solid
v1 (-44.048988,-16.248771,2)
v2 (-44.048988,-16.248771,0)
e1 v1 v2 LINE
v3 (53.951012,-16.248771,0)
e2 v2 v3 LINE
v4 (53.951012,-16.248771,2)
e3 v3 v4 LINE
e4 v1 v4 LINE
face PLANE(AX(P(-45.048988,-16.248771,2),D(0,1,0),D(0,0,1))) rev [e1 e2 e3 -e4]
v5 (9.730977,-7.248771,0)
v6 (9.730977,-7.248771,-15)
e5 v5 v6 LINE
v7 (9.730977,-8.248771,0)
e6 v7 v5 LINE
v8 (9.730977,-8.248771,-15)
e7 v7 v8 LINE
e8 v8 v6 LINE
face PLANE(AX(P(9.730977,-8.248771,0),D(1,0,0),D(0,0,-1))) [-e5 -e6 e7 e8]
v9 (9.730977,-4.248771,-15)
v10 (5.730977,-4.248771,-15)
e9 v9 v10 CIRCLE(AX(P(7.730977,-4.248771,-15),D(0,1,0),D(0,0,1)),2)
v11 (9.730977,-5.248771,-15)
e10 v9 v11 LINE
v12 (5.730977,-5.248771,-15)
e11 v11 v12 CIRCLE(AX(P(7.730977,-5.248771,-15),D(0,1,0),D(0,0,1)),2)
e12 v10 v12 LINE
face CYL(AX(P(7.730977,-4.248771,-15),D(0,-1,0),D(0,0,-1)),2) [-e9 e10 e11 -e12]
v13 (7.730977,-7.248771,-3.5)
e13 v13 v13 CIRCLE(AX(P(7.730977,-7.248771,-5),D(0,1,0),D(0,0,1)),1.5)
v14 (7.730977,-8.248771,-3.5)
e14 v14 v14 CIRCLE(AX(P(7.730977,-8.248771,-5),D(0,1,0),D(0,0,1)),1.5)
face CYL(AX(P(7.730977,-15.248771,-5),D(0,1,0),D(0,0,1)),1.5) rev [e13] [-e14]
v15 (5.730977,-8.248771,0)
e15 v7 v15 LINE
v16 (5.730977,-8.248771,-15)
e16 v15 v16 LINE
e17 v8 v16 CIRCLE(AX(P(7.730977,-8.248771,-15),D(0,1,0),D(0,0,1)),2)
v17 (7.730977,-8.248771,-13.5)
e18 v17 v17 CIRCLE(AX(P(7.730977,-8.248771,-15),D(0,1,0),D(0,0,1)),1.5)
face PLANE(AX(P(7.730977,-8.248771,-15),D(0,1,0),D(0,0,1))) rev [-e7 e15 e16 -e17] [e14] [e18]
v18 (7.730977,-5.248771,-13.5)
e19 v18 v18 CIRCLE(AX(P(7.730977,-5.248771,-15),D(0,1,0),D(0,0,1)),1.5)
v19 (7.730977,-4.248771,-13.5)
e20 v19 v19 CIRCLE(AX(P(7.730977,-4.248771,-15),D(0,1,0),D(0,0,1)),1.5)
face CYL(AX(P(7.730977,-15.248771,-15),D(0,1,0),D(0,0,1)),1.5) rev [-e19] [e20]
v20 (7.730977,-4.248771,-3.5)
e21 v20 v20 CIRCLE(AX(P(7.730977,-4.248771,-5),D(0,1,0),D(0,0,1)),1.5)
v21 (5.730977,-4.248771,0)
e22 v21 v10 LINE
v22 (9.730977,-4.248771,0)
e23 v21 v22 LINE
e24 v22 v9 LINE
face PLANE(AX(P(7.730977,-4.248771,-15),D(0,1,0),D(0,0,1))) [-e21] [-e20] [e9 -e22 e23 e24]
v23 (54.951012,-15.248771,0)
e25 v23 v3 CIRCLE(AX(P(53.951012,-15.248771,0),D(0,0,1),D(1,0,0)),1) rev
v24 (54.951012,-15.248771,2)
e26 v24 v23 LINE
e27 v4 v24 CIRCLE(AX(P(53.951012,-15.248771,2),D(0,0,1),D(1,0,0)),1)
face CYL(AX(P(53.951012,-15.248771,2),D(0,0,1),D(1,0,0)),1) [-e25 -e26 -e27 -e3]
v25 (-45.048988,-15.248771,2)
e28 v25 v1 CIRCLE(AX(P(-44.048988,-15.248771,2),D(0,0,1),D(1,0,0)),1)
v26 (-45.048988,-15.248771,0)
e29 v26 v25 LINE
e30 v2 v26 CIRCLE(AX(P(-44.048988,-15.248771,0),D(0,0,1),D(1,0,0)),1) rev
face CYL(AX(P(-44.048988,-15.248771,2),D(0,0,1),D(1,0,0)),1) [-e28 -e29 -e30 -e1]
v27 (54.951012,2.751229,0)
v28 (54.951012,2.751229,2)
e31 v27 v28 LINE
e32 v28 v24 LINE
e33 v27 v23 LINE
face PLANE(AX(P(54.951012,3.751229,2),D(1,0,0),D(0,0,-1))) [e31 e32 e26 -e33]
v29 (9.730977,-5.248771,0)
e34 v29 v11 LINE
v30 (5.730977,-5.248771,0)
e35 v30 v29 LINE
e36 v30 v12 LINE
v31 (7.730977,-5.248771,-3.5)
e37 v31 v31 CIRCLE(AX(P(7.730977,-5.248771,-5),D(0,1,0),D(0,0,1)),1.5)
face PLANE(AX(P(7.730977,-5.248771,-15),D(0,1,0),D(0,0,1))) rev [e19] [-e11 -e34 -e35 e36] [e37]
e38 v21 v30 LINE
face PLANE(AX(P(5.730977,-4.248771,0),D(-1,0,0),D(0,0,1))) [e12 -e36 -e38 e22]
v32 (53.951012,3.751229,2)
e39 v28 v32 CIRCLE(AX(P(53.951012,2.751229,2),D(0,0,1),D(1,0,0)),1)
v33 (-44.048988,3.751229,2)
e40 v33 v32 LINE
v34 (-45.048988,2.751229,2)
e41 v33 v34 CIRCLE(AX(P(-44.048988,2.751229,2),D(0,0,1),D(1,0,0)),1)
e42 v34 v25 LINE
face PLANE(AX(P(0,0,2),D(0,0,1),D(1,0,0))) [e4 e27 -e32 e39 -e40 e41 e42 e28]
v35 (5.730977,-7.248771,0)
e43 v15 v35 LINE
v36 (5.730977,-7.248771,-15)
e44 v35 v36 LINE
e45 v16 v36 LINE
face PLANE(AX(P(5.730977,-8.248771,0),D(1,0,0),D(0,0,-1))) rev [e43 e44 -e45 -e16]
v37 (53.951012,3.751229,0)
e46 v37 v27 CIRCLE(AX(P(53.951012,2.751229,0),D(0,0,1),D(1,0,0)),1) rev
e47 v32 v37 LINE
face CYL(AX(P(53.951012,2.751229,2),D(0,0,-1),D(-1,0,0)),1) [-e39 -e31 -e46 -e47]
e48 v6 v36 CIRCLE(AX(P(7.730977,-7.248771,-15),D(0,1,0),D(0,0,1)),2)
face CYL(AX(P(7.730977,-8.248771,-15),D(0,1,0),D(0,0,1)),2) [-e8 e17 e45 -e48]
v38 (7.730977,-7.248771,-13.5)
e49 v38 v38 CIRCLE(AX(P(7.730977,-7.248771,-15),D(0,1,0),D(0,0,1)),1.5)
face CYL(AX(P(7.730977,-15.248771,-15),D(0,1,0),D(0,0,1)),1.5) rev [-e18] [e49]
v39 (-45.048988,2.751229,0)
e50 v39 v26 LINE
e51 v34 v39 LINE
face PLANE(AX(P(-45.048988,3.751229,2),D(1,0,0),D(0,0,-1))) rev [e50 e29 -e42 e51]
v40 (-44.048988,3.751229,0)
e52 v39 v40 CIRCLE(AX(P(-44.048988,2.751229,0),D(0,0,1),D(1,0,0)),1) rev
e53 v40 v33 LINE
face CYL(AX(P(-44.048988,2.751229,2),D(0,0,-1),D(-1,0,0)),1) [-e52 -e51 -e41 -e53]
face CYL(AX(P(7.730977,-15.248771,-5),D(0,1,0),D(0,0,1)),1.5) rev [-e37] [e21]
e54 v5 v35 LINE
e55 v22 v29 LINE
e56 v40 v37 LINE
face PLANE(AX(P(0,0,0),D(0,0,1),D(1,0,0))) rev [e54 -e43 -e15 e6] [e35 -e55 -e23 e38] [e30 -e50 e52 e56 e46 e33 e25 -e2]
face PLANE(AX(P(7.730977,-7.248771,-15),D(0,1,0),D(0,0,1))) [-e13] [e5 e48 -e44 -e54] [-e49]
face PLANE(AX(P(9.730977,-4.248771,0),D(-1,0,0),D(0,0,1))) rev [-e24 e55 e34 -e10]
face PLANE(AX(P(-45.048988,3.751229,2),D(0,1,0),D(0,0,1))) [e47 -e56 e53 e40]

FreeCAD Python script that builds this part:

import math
import FreeCAD as App
import Part
import Sketcher


def edges_at(feature, points):
    """Names of the edges that pass closest to the given points."""
    edges = feature.Shape.Edges
    near = lambda p: min(range(len(edges)), key=lambda i: edges[i].distToShape(Part.Vertex(*p))[0])
    return sorted({f"Edge{near(p) + 1}" for p in points})

doc = App.newDocument("Part")
params = doc.addObject("Spreadsheet::Sheet", "Params")
for row, (alias, value) in enumerate([
    ("sketch1_width", "100 mm"),
    ("sketch1_height", "20 mm"),
    ("pad1_length", "2 mm"),
    ("fillet_radius", "1 mm"),
    ("fillet2_radius", "1 mm"),
    ("fillet3_radius", "1 mm"),
    ("fillet4_radius", "1 mm"),
    ("sketch2_radius", "2 mm"),
    ("sketch2_height", "15 mm"),
    ("pad2_length", "1 mm"),
    ("sketch3_radius", "2 mm"),
    ("sketch3_height", "15 mm"),
    ("pad3_length", "1 mm"),
    ("sketch4_diameter", "3 mm"),
    ("pocket1_length", "11 mm"),
], start=1):
    params.set(f"A{row}", alias)
    params.set(f"B{row}", "=" + value)
    params.setAlias(f"B{row}", alias)

body = doc.addObject("PartDesign::Body", "Body")

sketch1 = body.newObject("Sketcher::SketchObject", "Sketch")
sketch1.AttachmentSupport = (doc.getObject("XY_Plane"), [""])
sketch1.MapMode = "FlatFace"
sketch1.addGeometry([
    Part.LineSegment(App.Vector(-45, 4, 0), App.Vector(-45, -16, 0)),
    Part.LineSegment(App.Vector(-45, -16, 0), App.Vector(55, -16, 0)),
    Part.LineSegment(App.Vector(55, -16, 0), App.Vector(55, 4, 0)),
    Part.LineSegment(App.Vector(55, 4, 0), App.Vector(-45, 4, 0)),
], False)
sketch1.addConstraint([
    Sketcher.Constraint("Coincident", 0, 2, 1, 1),
    Sketcher.Constraint("Coincident", 1, 2, 2, 1),
    Sketcher.Constraint("Coincident", 2, 2, 3, 1),
    Sketcher.Constraint("Coincident", 3, 2, 0, 1),
    Sketcher.Constraint("Vertical", 0),
    Sketcher.Constraint("Horizontal", 1),
    Sketcher.Constraint("Vertical", 2),
    Sketcher.Constraint("Horizontal", 3),
    Sketcher.Constraint("DistanceX", 1, 1, 1, 2, 100.0),
    Sketcher.Constraint("DistanceY", 0, 2, 0, 1, 20.0),
    Sketcher.Constraint("DistanceX", 0, 2, -1, 1, 45.048988),
    Sketcher.Constraint("DistanceY", 0, 2, -1, 1, 16.248771),
])
sketch1.setExpression("Constraints[8]", "Params.sketch1_width")
sketch1.setExpression("Constraints[9]", "Params.sketch1_height")
pad1 = body.newObject("PartDesign::Pad", "Pad")
pad1.Profile = sketch1
pad1.setExpression("Length", "Params.pad1_length")
doc.recompute()

fillet = body.newObject("PartDesign::Fillet", "Fillet")
fillet.Base = (pad1, edges_at(pad1, [(54.951, -16.249, 1)]))
fillet.setExpression("Radius", "Params.fillet_radius")
doc.recompute()

fillet2 = body.newObject("PartDesign::Fillet", "Fillet001")
fillet2.Base = (fillet, edges_at(fillet, [(-45.049, -16.249, 1)]))
fillet2.setExpression("Radius", "Params.fillet2_radius")
doc.recompute()

fillet3 = body.newObject("PartDesign::Fillet", "Fillet002")
fillet3.Base = (fillet2, edges_at(fillet2, [(-45.049, 3.751, 1)]))
fillet3.setExpression("Radius", "Params.fillet3_radius")
doc.recompute()

fillet4 = body.newObject("PartDesign::Fillet", "Fillet003")
fillet4.Base = (fillet3, edges_at(fillet3, [(54.951, 3.751, 1)]))
fillet4.setExpression("Radius", "Params.fillet4_radius")

sketch2 = body.newObject("Sketcher::SketchObject", "Sketch001")
sketch2.AttachmentSupport = (doc.getObject("XZ_Plane"), [""])
sketch2.MapMode = "FlatFace"
sketch2.AttachmentOffset = App.Placement(App.Vector(0, 0, 7.248771), App.Rotation())
sketch2.addGeometry([
    Part.LineSegment(App.Vector(9.7, -15, 0), App.Vector(9.7, 0, 0)),
    Part.LineSegment(App.Vector(9.7, 0, 0), App.Vector(5.7, 0, 0)),
    Part.LineSegment(App.Vector(5.7, 0, 0), App.Vector(5.7, -15, 0)),
    Part.ArcOfCircle(Part.Circle(App.Vector(7.7, -15, 0), App.Vector(0, 0, 1), 2), math.radians(180), math.radians(360)),
], False)
sketch2.addConstraint([
    Sketcher.Constraint("Coincident", 0, 2, 1, 1),
    Sketcher.Constraint("Coincident", 1, 2, 2, 1),
    Sketcher.Constraint("Tangent", 2, 2, 3, 1),
    Sketcher.Constraint("Tangent", 3, 2, 0, 1),
    Sketcher.Constraint("Vertical", 0),
    Sketcher.Constraint("Horizontal", 1),
    Sketcher.Constraint("Vertical", 2),
    Sketcher.Constraint("PointOnObject", 0, 2, -1),
    Sketcher.Constraint("Radius", 3, 2.0),
    Sketcher.Constraint("DistanceY", 0, 1, 0, 2, 15.0),
    Sketcher.Constraint("DistanceX", -1, 1, 3, 3, 7.730977),
])
sketch2.setExpression("Constraints[8]", "Params.sketch2_radius")
sketch2.setExpression("Constraints[9]", "Params.sketch2_height")
pad2 = body.newObject("PartDesign::Pad", "Pad001")
pad2.Profile = sketch2
pad2.setExpression("Length", "Params.pad2_length")

sketch3 = body.newObject("Sketcher::SketchObject", "Sketch002")
sketch3.AttachmentSupport = (doc.getObject("XZ_Plane"), [""])
sketch3.MapMode = "FlatFace"
sketch3.AttachmentOffset = App.Placement(App.Vector(0, 0, 4.248771), App.Rotation())
sketch3.addGeometry([
    Part.LineSegment(App.Vector(5.7, -15, 0), App.Vector(5.7, 0, 0)),
    Part.LineSegment(App.Vector(5.7, 0, 0), App.Vector(9.7, 0, 0)),
    Part.LineSegment(App.Vector(9.7, 0, 0), App.Vector(9.7, -15, 0)),
    Part.ArcOfCircle(Part.Circle(App.Vector(7.7, -15, 0), App.Vector(0, 0, 1), 2), math.radians(180), math.radians(360)),
], False)
sketch3.addConstraint([
    Sketcher.Constraint("Coincident", 0, 2, 1, 1),
    Sketcher.Constraint("Coincident", 1, 2, 2, 1),
    Sketcher.Constraint("Tangent", 2, 2, 3, 2),
    Sketcher.Constraint("Tangent", 3, 1, 0, 1),
    Sketcher.Constraint("Vertical", 0),
    Sketcher.Constraint("Horizontal", 1),
    Sketcher.Constraint("Vertical", 2),
    Sketcher.Constraint("PointOnObject", 0, 2, -1),
    Sketcher.Constraint("Radius", 3, 2.0),
    Sketcher.Constraint("DistanceY", 0, 1, 0, 2, 15.0),
    Sketcher.Constraint("DistanceX", -1, 1, 3, 3, 7.730977),
])
sketch3.setExpression("Constraints[8]", "Params.sketch3_radius")
sketch3.setExpression("Constraints[9]", "Params.sketch3_height")
pad3 = body.newObject("PartDesign::Pad", "Pad002")
pad3.Profile = sketch3
pad3.setExpression("Length", "Params.pad3_length")

sketch4 = body.newObject("Sketcher::SketchObject", "Sketch003")
sketch4.AttachmentSupport = (doc.getObject("XZ_Plane"), [""])
sketch4.MapMode = "FlatFace"
sketch4.AttachmentOffset = App.Placement(App.Vector(0, 0, 4.248771), App.Rotation())
sketch4.addGeometry([
    Part.Circle(App.Vector(7.7, -15, 0), App.Vector(0, 0, 1), 1.5),
    Part.Circle(App.Vector(7.7, -5, 0), App.Vector(0, 0, 1), 1.5),
], False)
sketch4.addConstraint([
    Sketcher.Constraint("Equal", 0, 1),
    Sketcher.Constraint("Vertical", 0, 3, 1, 3),
    Sketcher.Constraint("Diameter", 0, 3.0),
    Sketcher.Constraint("DistanceY", 0, 3, -1, 1, 15.0),
    Sketcher.Constraint("DistanceY", 1, 3, -1, 1, 5.0),
    Sketcher.Constraint("DistanceX", -1, 1, 0, 3, 7.730977),
])
sketch4.setExpression("Constraints[2]", "Params.sketch4_diameter")
pocket1 = body.newObject("PartDesign::Pocket", "Pocket")
pocket1.Profile = sketch4
pocket1.setExpression("Length", "Params.pocket1_length")
pocket1.Reversed = True

doc.recompute()
